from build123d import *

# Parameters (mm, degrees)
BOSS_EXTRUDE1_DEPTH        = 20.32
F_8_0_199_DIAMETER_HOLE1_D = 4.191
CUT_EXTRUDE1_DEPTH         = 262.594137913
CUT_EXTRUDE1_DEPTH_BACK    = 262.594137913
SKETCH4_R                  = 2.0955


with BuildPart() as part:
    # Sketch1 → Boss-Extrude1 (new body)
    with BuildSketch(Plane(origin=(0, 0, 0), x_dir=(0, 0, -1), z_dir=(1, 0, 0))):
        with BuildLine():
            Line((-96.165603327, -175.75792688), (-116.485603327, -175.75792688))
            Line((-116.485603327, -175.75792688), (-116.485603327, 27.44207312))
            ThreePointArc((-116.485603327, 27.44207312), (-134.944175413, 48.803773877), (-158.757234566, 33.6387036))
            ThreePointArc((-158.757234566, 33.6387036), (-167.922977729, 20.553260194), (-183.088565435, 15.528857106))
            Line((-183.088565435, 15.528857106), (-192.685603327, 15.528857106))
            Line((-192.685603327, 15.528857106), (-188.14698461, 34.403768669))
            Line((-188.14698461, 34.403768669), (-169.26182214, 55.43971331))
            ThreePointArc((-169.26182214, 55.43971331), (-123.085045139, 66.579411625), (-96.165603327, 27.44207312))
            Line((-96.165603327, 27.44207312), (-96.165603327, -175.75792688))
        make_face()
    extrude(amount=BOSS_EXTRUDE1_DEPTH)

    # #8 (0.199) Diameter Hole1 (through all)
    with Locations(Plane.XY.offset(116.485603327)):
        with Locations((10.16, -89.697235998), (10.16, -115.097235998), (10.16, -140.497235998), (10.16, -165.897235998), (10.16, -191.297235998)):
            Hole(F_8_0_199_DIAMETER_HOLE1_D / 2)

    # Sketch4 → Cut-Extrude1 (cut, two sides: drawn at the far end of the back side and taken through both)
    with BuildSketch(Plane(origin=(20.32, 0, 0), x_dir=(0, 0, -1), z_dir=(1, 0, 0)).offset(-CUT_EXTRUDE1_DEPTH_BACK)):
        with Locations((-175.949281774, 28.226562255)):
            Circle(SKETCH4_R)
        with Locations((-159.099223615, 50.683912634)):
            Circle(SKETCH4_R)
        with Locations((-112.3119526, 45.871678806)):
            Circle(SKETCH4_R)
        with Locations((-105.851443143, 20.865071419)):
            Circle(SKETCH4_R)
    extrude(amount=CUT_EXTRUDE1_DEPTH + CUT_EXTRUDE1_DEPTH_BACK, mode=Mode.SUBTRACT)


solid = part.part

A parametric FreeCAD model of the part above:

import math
import FreeCAD as App
import Part
import Sketcher
from FreeCAD import Vector
Q = App.Units.Quantity

doc = App.newDocument("Part")
body = doc.addObject("PartDesign::Body", "Body")

sketch1 = body.newObject("Sketcher::SketchObject", "Sketch")
sketch1.AttachmentSupport = (doc.getObject("YZ_Plane"), [""])
sketch1.MapMode = "FlatFace"
sketch1.addGeometry(Part.LineSegment(Vector(-176, 116, 0), Vector(-176, 96, 0)), False)
sketch1.addGeometry(Part.LineSegment(Vector(-176, 96, 0), Vector(27, 96, 0)), False)
sketch1.addGeometry(Part.ArcOfCircle(Part.Circle(Vector(27, 138, 0), Vector(0, 0, 1), 42), math.radians(-90), math.radians(48)), False)
sketch1.addGeometry(Part.LineSegment(Vector(55, 169, 0), Vector(34, 188, 0)), False)
sketch1.addGeometry(Part.LineSegment(Vector(34, 188, 0), Vector(16, 193, 0)), False)
sketch1.addGeometry(Part.LineSegment(Vector(16, 193, 0), Vector(16, 183, 0)), False)
sketch1.addGeometry(Part.ArcOfCircle(Part.Circle(Vector(41, 183, 0), Vector(0, 0, 1), 25), math.radians(-180), math.radians(-107)), False)
sketch1.addGeometry(Part.ArcOfCircle(Part.Circle(Vector(27, 138, 0), Vector(0, 0, 1), 22), math.radians(-90), math.radians(73)), False)
sketch1.addGeometry(Part.LineSegment(Vector(27, 116, 0), Vector(-176, 116, 0)), False)
sketch1.addConstraint(Sketcher.Constraint("Coincident", 0, 2, 1, 1))
sketch1.addConstraint(Sketcher.Constraint("Tangent", 1, 2, 2, 1))
sketch1.addConstraint(Sketcher.Constraint("Tangent", 2, 2, 3, 1))
sketch1.addConstraint(Sketcher.Constraint("Coincident", 3, 2, 4, 1))
sketch1.addConstraint(Sketcher.Constraint("Coincident", 4, 2, 5, 1))
sketch1.addConstraint(Sketcher.Constraint("Tangent", 5, 2, 6, 1))
sketch1.addConstraint(Sketcher.Constraint("Tangent", 6, 2, 7, 2))
sketch1.addConstraint(Sketcher.Constraint("Tangent", 7, 1, 8, 1))
sketch1.addConstraint(Sketcher.Constraint("Coincident", 8, 2, 0, 1))
sketch1.addConstraint(Sketcher.Constraint("Vertical", 0))
sketch1.addConstraint(Sketcher.Constraint("Horizontal", 1))
sketch1.addConstraint(Sketcher.Constraint("Vertical", 5))
sketch1.addConstraint(Sketcher.Constraint("Horizontal", 8))
sketch1.addConstraint(Sketcher.Constraint("Coincident", 7, 3, 2, 3))
sketch1.addConstraint(Sketcher.Constraint("Radius", 6, Q("1 in")))
sketch1.addConstraint(Sketcher.Constraint("DistanceX", 1, 1, 1, 2, Q("8 in")))
sketch1.addConstraint(Sketcher.Constraint("Radius", 2, Q("1.65 in")))
sketch1.addConstraint(Sketcher.Constraint("Radius", 7, Q("0.85 in")))
sketch1.addConstraint(Sketcher.Constraint("DistanceY", 2, 3, 4, 2, Q("2.15 in")))
sketch1.addConstraint(Sketcher.Constraint("DistanceY", 5, 2, 5, 1, Q("9.597038 mm")))
sketch1.addConstraint(Sketcher.Constraint("DistanceX", -1, 1, 3, 2, Q("34.403769 mm")))
sketch1.addConstraint(Sketcher.Constraint("DistanceX", 2, 3, 2, 2, Q("27.99764 mm")))
sketch1.addConstraint(Sketcher.Constraint("DistanceX", 3, 2, 6, 3, Q("6.525088 mm")))
sketch1.addConstraint(Sketcher.Constraint("DistanceY", -1, 1, 2, 3, Q("138.075603 mm")))
pad1 = body.newObject("PartDesign::Pad", "Pad")
pad1.Profile = sketch1
pad1.Length = Q("0.8 in")

sketch2 = body.newObject("Sketcher::SketchObject", "Sketch001")
sketch2.AttachmentSupport = (doc.getObject("XY_Plane"), [""])
sketch2.MapMode = "FlatFace"
sketch2.AttachmentOffset = App.Placement(Vector(0, 0, 116.485603), App.Rotation())
sketch2.addGeometry(Part.Circle(Vector(10.2, -89.7, 0), Vector(0, 0, 1), 2.1), False)
sketch2.addGeometry(Part.Circle(Vector(10.2, -115.1, 0), Vector(0, 0, 1), 2.1), False)
sketch2.addGeometry(Part.Circle(Vector(10.2, -140.5, 0), Vector(0, 0, 1), 2.1), False)
sketch2.addGeometry(Part.Circle(Vector(10.2, -165.9, 0), Vector(0, 0, 1), 2.1), False)
sketch2.addGeometry(Part.Circle(Vector(10.2, -191.3, 0), Vector(0, 0, 1), 2.1), False)
sketch2.addConstraint(Sketcher.Constraint("Equal", 0, 1))
sketch2.addConstraint(Sketcher.Constraint("Equal", 1, 2))
sketch2.addConstraint(Sketcher.Constraint("Equal", 2, 3))
sketch2.addConstraint(Sketcher.Constraint("Equal", 3, 4))
sketch2.addConstraint(Sketcher.Constraint("Vertical", 0, 3, 1, 3))
sketch2.addConstraint(Sketcher.Constraint("Vertical", 1, 3, 2, 3))
sketch2.addConstraint(Sketcher.Constraint("Vertical", 2, 3, 3, 3))
sketch2.addConstraint(Sketcher.Constraint("Vertical", 3, 3, 4, 3))
sketch2.addConstraint(Sketcher.Constraint("Diameter", 0, Q("0.165 in")))
sketch2.addConstraint(Sketcher.Constraint("DistanceY", 1, 3, 0, 3, Q("1 in")))
sketch2.addConstraint(Sketcher.Constraint("DistanceY", 2, 3, 1, 3, Q("1 in")))
sketch2.addConstraint(Sketcher.Constraint("DistanceY", 3, 3, 2, 3, Q("1 in")))
sketch2.addConstraint(Sketcher.Constraint("DistanceY", 4, 3, 3, 3, Q("1 in")))
sketch2.addConstraint(Sketcher.Constraint("DistanceX", -1, 1, 0, 3, Q("0.4 in")))
sketch2.addConstraint(Sketcher.Constraint("DistanceY", 0, 3, -1, 1, Q("89.697236 mm")))
doc.recompute()
hole = body.newObject("PartDesign::Hole", "Hole")
hole.Profile = sketch2
hole.ThreadType = "None"
hole.Diameter = Q("0.165 in")
hole.DepthType = "ThroughAll"

sketch3 = body.newObject("Sketcher::SketchObject", "Sketch002")
sketch3.AttachmentSupport = (doc.getObject("YZ_Plane"), [""])
sketch3.MapMode = "FlatFace"
sketch3.AttachmentOffset = App.Placement(Vector(0, 0, 0.8 * 25.4), App.Rotation())
sketch3.addGeometry(Part.Circle(Vector(28.2, 175.9, 0), Vector(0, 0, 1), 2.1), False)
sketch3.addGeometry(Part.Circle(Vector(50.7, 159.1, 0), Vector(0, 0, 1), 2.1), False)
sketch3.addGeometry(Part.Circle(Vector(45.9, 112.3, 0), Vector(0, 0, 1), 2.1), False)
sketch3.addGeometry(Part.Circle(Vector(20.9, 105.9, 0), Vector(0, 0, 1), 2.1), False)
sketch3.addConstraint(Sketcher.Constraint("Equal", 0, 1))
sketch3.addConstraint(Sketcher.Constraint("Equal", 1, 2))
sketch3.addConstraint(Sketcher.Constraint("Equal", 2, 3))
sketch3.addConstraint(Sketcher.Constraint("Diameter", 0, Q("0.165 in")))
sketch3.addConstraint(Sketcher.Constraint("DistanceY", -1, 1, 0, 3, Q("175.949282 mm")))
sketch3.addConstraint(Sketcher.Constraint("DistanceX", -1, 1, 2, 3, Q("45.871679 mm")))
sketch3.addConstraint(Sketcher.Constraint("DistanceX", -1, 1, 3, 3, Q("20.865071 mm")))
sketch3.addConstraint(Sketcher.Constraint("DistanceX", 0, 3, 1, 3, Q("22.45735 mm")))
sketch3.addConstraint(Sketcher.Constraint("DistanceY", 1, 3, 0, 3, Q("16.850058 mm")))
sketch3.addConstraint(Sketcher.Constraint("DistanceY", 2, 3, 1, 3, Q("46.787271 mm")))
sketch3.addConstraint(Sketcher.Constraint("DistanceY", 3, 3, 2, 3, Q("6.460509 mm")))
sketch3.addConstraint(Sketcher.Constraint("DistanceX", 3, 3, 1, 3, Q("29.818841 mm")))
pocket1 = body.newObject("PartDesign::Pocket", "Pocket")
pocket1.Profile = sketch3
pocket1.Type = "ThroughAll"
pocket1.Midplane = True

doc.recompute()
